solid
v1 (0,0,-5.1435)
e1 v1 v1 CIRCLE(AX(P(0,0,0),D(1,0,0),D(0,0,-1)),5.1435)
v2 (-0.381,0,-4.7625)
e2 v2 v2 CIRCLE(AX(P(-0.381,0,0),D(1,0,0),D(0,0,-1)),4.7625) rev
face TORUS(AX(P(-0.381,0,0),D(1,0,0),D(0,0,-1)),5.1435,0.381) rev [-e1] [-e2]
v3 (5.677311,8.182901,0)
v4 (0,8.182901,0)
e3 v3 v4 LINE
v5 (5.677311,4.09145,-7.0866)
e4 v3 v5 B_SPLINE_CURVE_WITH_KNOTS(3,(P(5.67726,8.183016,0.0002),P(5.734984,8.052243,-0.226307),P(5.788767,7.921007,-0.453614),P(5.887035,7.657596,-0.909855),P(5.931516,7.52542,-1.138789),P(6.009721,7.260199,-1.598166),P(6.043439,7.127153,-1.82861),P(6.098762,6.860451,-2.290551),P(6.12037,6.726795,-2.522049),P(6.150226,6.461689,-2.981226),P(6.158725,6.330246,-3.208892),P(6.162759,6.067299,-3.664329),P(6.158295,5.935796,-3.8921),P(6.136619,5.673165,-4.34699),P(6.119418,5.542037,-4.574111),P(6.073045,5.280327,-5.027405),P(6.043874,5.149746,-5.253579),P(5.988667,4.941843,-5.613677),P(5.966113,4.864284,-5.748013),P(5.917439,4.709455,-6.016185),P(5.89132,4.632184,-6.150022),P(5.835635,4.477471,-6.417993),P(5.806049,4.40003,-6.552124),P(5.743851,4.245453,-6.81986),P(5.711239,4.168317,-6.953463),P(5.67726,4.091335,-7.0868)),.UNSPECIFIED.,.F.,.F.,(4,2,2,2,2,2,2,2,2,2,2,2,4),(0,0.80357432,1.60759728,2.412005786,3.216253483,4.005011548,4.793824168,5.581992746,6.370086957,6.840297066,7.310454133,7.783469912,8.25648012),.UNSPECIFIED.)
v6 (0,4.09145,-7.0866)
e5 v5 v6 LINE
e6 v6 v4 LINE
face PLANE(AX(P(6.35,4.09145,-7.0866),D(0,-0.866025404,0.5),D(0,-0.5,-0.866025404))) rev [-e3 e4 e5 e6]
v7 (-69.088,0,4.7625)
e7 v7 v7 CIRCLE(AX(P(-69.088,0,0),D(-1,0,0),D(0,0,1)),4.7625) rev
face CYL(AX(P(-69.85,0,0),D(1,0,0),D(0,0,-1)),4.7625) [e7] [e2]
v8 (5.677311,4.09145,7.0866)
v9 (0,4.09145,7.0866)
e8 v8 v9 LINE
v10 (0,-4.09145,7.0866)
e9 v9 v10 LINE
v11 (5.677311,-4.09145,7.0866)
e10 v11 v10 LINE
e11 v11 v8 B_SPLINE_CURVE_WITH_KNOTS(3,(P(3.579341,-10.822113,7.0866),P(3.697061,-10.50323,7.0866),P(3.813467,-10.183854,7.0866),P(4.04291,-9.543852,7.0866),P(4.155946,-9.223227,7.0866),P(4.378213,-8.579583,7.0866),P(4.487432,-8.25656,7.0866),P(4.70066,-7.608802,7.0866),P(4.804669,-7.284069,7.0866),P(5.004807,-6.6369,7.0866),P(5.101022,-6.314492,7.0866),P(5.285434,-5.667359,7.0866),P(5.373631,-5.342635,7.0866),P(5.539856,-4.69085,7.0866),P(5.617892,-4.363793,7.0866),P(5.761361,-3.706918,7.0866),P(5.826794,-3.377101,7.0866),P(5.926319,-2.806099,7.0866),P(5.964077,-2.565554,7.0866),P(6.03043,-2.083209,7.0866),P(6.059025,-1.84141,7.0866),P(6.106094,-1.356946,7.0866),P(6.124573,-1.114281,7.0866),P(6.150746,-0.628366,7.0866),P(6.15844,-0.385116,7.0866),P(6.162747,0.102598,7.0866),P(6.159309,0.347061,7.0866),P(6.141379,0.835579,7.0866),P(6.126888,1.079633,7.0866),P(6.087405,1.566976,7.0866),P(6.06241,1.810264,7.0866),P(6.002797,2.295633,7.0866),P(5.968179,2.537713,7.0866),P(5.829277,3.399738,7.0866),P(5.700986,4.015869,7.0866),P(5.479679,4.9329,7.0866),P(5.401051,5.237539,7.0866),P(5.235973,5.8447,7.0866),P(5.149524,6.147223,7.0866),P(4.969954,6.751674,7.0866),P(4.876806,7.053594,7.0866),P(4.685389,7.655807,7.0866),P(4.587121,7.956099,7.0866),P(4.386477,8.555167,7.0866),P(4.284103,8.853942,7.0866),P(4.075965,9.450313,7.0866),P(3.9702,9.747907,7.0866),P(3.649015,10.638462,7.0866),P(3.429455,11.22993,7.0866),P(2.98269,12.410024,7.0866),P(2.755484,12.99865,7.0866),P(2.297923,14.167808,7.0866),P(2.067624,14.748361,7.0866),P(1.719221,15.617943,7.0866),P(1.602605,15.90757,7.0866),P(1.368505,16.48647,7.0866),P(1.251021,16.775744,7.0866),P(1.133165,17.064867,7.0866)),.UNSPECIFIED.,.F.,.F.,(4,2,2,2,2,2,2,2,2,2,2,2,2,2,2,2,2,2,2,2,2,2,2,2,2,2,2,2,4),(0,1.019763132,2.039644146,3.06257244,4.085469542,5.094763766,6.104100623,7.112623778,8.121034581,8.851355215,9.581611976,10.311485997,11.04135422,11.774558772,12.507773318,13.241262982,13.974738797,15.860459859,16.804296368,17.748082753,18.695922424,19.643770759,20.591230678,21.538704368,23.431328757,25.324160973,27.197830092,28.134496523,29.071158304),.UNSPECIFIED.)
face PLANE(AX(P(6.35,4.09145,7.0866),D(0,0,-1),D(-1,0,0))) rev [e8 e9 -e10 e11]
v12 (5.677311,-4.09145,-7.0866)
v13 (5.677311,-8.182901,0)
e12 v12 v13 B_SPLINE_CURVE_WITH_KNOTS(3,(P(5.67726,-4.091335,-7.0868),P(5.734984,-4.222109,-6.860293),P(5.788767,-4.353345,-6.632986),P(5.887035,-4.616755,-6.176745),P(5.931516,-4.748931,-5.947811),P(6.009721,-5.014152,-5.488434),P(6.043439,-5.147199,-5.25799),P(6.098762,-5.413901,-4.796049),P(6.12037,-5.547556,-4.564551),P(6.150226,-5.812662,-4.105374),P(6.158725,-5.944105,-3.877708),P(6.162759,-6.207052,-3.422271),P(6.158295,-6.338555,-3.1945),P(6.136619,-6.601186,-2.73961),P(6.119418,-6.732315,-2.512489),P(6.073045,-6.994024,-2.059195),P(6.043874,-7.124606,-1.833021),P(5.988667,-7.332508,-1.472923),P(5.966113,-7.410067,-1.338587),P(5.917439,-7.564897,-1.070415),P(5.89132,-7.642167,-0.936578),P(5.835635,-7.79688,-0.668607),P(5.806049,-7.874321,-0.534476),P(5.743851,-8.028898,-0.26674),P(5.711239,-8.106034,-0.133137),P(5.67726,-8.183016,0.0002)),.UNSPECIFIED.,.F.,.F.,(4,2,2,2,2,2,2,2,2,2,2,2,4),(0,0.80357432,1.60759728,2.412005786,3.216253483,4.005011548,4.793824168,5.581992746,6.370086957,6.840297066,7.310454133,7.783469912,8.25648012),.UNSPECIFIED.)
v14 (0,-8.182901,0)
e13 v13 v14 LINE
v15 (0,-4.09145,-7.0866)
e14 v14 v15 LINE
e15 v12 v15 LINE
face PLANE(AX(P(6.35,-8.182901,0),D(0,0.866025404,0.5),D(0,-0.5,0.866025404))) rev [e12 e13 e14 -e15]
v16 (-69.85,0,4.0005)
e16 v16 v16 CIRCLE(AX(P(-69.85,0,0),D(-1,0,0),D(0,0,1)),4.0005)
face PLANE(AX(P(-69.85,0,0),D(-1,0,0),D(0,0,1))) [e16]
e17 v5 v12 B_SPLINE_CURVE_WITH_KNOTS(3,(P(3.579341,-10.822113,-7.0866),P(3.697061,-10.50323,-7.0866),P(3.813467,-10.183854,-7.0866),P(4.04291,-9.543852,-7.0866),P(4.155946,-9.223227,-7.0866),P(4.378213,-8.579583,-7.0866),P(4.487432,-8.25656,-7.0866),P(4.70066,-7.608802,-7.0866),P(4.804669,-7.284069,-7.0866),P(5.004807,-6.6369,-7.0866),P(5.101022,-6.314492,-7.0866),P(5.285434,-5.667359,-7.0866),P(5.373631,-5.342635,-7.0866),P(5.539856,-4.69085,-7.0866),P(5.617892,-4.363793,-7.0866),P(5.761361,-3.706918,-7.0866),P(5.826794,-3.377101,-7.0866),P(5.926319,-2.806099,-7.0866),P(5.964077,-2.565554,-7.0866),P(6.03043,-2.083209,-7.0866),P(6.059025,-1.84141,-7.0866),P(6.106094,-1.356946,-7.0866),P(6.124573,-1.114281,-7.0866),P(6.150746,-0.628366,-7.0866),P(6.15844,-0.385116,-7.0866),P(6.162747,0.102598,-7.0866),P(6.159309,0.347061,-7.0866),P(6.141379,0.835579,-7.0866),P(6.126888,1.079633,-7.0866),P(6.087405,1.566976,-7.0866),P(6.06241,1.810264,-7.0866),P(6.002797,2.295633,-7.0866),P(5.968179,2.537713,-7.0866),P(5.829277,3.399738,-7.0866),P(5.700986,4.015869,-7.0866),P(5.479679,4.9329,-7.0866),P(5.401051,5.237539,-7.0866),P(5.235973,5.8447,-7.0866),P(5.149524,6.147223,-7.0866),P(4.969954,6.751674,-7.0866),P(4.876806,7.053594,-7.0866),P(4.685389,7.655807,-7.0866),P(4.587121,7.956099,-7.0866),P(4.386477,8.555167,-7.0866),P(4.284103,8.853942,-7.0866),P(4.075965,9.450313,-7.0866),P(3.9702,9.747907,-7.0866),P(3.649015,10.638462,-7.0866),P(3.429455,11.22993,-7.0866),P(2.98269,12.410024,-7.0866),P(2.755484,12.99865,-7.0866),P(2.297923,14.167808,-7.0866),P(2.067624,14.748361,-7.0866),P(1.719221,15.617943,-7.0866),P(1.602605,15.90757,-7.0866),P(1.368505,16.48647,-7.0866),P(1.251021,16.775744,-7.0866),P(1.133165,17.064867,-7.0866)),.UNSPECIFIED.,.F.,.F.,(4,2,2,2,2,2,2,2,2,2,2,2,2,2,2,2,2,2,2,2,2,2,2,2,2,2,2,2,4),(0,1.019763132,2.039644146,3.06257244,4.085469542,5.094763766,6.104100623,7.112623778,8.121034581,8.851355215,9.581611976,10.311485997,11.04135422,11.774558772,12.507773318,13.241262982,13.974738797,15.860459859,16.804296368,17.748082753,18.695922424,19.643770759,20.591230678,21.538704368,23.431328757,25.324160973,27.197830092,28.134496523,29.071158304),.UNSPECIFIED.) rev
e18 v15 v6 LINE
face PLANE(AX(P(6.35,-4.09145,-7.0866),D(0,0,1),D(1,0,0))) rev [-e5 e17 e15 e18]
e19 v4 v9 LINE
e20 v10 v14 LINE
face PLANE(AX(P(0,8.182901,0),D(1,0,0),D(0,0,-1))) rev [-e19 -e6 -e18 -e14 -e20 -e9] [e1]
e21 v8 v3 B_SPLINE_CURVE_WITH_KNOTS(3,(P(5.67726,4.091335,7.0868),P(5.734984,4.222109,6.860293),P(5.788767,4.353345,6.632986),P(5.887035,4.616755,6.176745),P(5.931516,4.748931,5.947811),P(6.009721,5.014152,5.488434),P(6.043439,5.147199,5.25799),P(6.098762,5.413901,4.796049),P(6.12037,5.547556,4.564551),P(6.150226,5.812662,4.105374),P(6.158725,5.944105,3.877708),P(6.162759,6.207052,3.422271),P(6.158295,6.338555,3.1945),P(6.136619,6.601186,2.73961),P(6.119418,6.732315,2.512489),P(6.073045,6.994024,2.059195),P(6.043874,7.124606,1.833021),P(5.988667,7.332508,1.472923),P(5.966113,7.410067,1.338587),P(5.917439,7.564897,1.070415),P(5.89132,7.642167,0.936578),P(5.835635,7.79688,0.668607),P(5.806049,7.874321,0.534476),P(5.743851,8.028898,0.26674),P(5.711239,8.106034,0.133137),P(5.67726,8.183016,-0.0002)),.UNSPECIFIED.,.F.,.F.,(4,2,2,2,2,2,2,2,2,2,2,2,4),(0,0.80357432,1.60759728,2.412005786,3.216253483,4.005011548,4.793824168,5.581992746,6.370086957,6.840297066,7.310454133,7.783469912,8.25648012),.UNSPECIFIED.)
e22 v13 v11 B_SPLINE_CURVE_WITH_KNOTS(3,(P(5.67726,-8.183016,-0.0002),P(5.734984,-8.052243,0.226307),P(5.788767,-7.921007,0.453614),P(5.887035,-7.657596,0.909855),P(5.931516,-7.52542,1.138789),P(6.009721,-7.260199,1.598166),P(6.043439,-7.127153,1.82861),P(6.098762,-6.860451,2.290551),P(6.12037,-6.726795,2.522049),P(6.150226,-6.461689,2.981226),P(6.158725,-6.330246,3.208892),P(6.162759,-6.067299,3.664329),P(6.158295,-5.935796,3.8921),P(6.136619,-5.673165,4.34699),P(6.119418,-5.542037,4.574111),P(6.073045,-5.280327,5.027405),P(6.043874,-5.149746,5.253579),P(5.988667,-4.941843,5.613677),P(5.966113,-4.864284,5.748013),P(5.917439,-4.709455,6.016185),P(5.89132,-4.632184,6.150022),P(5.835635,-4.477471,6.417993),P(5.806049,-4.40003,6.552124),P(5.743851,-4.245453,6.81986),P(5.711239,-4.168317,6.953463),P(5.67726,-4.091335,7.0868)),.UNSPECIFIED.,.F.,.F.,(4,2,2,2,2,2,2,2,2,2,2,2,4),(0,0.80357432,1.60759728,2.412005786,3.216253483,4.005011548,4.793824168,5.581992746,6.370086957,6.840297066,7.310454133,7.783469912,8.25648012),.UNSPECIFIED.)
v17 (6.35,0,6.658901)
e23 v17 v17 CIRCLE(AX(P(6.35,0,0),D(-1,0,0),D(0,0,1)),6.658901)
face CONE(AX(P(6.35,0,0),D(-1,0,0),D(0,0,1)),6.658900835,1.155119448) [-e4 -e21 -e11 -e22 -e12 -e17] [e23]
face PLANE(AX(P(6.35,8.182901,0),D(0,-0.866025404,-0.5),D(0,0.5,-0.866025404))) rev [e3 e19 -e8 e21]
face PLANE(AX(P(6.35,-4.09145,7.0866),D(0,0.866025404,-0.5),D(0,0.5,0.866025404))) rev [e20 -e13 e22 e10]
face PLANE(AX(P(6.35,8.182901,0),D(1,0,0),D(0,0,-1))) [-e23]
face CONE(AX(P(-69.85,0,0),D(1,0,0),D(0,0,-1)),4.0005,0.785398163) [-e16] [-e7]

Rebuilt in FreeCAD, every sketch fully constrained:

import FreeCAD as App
import Part
import Sketcher

V = App.Vector
Q = App.Units.Quantity


def edges_at(feature, points):
    """Names of the edges that pass closest to the given points."""
    edges = feature.Shape.Edges
    near = lambda p: min(range(len(edges)), key=lambda i: edges[i].distToShape(Part.Vertex(*p))[0])
    return sorted({f"Edge{near(p) + 1}" for p in points})


def add_polygon(sketch, points):
    """Adds a closed chain of lines whose ends are joined by coincident constraints."""
    first, n = sketch.GeometryCount, len(points)
    for a, b in zip(points, points[1:] + points[:1]):
        sketch.addGeometry(Part.LineSegment(App.Vector(*a, 0), App.Vector(*b, 0)), False)
    for i in range(n):
        sketch.addConstraint(Sketcher.Constraint("Coincident", first + i, 2, first + (i + 1) % n, 1))

doc = App.newDocument("Part")
body = doc.addObject("PartDesign::Body", "Body")

# Sketch on YZ plane
sketch1 = body.newObject("Sketcher::SketchObject", "Sketch")
sketch1.AttachmentSupport = (doc.getObject("YZ_Plane"), [""])
sketch1.MapMode = "FlatFace"
add_polygon(sketch1, [(8.182901, 0), (4.09145, 7.0866), (-4.09145, 7.0866), (-8.182901, 0), (-4.09145, -7.0866), (4.09145, -7.0866)])  # lines 0-5
sketch1.addConstraint(Sketcher.Constraint("Horizontal", 1))
sketch1.addConstraint(Sketcher.Constraint("Horizontal", 4))
sketch1.addConstraint(Sketcher.Constraint("Symmetric", 0, 2, 3, 2, -1, 1))
sketch1.addConstraint(Sketcher.Constraint("Symmetric", 2, 2, 5, 2, -1, 1))
sketch1.addConstraint(Sketcher.Constraint("PointOnObject", 2, 2, -1))
sketch1.addConstraint(Sketcher.Constraint("Parallel", 2, 5))
sketch1.addConstraint(Sketcher.Constraint("Vertical", 1, 2, 3, 2))
sketch1.addConstraint(Sketcher.Constraint("Angle", 0, Q("120 deg")))
sketch1.addConstraint(Sketcher.Constraint("DistanceY", -1, 1, 0, 2, Q("0.279 in")))
sketch1.addConstraint(Sketcher.Constraint("DistanceX", 1, 2, 1, 1, Q("8.182901 mm")))
pad1 = body.newObject("PartDesign::Pad", "Pad")
pad1.Profile = sketch1
pad1.Length = Q("0.25 in")

# Sketch on XY plane
sketch2 = body.newObject("Sketcher::SketchObject", "Sketch001")
sketch2.AttachmentSupport = (doc.getObject("XY_Plane"), [""])
sketch2.MapMode = "FlatFace"
add_polygon(sketch2, [(5.677311, 8.182901), (6.35, 6.658901), (6.35, 8.182901)])  # lines 0-2
sketch2.addConstraint(Sketcher.Constraint("Vertical", 1))
sketch2.addConstraint(Sketcher.Constraint("Horizontal", 2))
sketch2.addConstraint(Sketcher.Constraint("DistanceY", 1, 1, 1, 2, Q("0.06 in")))
sketch2.addConstraint(Sketcher.Constraint("DistanceX", -1, 1, 0, 2, Q("0.25 in")))
sketch2.addConstraint(Sketcher.Constraint("DistanceX", 2, 2, 2, 1, Q("0.672689 mm")))
sketch2.addConstraint(Sketcher.Constraint("DistanceY", -1, 1, 0, 2, Q("6.658901 mm")))
groove = body.newObject("PartDesign::Groove", "Groove")
groove.Profile = sketch2
groove.ReferenceAxis = (sketch2, ["H_Axis"])
groove.Angle = 360

# Sketch on YZ plane
sketch3 = body.newObject("Sketcher::SketchObject", "Sketch002")
sketch3.AttachmentSupport = (doc.getObject("YZ_Plane"), [""])
sketch3.MapMode = "FlatFace"
sketch3.addGeometry(Part.Circle(V(0, 0, 0), V(0, 0, 1), 4.7625), False)
sketch3.addConstraint(Sketcher.Constraint("Coincident", 0, 3, -1, 1))
sketch3.addConstraint(Sketcher.Constraint("Diameter", 0, Q("0.375 in")))
pad2 = body.newObject("PartDesign::Pad", "Pad001")
pad2.Profile = sketch3
pad2.Length = Q("2.75 in")
pad2.Reversed = True
doc.recompute()

chamfer = body.newObject("PartDesign::Chamfer", "Chamfer")
chamfer.Base = (pad2, edges_at(pad2, [(-69.85, 0, 4.763)]))
chamfer.Size = Q("0.03 in")
doc.recompute()

fillet = body.newObject("PartDesign::Fillet", "Fillet")
fillet.Base = (chamfer, edges_at(chamfer, [(0, 0, 4.763)]))
fillet.Radius = Q("0.015 in")

doc.recompute()
